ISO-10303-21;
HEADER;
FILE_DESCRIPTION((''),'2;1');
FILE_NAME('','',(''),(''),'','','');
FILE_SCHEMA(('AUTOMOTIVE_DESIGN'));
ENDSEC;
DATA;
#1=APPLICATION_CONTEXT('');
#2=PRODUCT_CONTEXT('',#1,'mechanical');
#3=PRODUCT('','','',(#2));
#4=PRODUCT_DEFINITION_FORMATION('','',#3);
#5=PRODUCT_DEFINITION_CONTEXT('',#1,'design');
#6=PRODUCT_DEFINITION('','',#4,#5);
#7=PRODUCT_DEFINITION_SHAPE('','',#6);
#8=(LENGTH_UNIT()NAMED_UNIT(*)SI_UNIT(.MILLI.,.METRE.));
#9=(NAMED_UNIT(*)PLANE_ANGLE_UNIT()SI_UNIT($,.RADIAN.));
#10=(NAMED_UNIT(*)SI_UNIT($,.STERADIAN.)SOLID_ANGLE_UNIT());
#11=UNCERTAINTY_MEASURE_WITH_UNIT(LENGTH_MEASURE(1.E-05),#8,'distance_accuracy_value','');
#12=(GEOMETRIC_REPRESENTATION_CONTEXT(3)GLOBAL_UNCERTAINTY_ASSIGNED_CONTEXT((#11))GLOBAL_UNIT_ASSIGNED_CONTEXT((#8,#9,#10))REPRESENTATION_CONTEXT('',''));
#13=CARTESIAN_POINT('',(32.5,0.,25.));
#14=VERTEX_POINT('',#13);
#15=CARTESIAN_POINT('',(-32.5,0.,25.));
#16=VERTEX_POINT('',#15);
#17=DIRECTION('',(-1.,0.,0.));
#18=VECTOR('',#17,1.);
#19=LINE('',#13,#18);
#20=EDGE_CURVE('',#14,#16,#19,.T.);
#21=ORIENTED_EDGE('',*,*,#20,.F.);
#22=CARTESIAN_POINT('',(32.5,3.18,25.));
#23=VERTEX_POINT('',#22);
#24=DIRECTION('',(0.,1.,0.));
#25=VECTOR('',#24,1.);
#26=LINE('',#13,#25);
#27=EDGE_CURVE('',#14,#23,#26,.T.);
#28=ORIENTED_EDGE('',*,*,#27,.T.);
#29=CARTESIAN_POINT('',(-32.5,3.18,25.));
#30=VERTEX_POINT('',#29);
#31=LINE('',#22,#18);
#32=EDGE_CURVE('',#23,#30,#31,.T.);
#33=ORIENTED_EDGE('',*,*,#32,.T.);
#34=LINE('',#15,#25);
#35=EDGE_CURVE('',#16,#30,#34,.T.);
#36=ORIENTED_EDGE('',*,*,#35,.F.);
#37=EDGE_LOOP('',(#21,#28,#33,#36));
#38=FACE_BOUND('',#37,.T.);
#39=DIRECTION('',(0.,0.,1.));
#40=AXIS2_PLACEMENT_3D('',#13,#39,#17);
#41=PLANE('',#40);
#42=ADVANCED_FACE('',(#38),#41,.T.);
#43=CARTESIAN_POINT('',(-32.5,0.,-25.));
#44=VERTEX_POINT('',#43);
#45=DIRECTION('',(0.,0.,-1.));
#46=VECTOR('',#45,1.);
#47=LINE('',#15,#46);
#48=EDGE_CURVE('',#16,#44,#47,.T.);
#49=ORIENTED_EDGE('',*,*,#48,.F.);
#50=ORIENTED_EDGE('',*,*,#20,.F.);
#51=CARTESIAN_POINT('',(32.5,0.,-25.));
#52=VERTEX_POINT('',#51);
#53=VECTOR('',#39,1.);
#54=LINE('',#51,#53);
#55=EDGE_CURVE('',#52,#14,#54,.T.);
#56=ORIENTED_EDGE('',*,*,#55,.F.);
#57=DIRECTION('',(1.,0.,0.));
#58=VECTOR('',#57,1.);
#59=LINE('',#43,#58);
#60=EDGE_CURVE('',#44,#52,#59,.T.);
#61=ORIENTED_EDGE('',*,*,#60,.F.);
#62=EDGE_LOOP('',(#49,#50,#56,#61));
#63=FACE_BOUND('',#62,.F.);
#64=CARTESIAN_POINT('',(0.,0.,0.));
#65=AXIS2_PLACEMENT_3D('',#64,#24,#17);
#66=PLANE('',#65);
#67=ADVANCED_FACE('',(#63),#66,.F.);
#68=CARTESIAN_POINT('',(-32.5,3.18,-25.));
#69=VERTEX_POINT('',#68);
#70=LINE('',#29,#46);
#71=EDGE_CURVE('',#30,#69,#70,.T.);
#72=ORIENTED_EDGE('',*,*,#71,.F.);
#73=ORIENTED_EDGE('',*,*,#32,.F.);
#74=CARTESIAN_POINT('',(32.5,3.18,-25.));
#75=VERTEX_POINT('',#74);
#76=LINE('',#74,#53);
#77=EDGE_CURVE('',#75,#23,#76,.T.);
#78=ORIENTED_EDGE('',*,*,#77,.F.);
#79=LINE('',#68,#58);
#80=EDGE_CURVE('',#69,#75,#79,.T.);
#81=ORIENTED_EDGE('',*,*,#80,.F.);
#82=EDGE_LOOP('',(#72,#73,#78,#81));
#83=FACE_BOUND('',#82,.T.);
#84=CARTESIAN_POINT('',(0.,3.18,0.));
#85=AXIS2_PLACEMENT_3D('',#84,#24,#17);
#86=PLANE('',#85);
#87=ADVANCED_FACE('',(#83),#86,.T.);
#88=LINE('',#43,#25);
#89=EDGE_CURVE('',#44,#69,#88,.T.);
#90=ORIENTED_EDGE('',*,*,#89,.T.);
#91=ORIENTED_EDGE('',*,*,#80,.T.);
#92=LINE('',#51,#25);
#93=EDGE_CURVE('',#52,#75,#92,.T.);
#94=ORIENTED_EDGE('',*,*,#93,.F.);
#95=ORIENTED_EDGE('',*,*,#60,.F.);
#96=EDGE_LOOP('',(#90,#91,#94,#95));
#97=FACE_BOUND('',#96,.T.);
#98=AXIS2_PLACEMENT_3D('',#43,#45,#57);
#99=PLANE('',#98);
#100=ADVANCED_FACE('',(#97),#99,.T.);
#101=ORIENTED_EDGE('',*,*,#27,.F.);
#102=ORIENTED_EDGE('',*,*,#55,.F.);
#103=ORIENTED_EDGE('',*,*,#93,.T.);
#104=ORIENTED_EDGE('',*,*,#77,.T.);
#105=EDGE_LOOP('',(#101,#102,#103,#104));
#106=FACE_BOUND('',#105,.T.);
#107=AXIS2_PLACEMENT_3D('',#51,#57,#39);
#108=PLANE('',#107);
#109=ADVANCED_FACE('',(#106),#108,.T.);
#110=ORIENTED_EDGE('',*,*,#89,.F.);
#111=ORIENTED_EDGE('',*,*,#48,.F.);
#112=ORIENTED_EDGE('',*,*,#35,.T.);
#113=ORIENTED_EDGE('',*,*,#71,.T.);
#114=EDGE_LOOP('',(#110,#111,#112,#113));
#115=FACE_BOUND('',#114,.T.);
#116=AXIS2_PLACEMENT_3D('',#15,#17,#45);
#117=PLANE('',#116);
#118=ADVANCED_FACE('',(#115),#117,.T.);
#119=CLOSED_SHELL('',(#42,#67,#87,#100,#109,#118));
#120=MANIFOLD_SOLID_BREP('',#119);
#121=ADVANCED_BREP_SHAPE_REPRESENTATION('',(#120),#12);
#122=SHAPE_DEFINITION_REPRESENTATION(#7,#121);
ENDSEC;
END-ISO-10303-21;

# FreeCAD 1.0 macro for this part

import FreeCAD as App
import Part
import Sketcher
from FreeCAD import Vector


def add_polygon(sketch, points):
    """Adds a closed chain of lines whose ends are joined by coincident constraints."""
    first, n = sketch.GeometryCount, len(points)
    for a, b in zip(points, points[1:] + points[:1]):
        sketch.addGeometry(Part.LineSegment(App.Vector(*a, 0), App.Vector(*b, 0)), False)
    for i in range(n):
        sketch.addConstraint(Sketcher.Constraint("Coincident", first + i, 2, first + (i + 1) % n, 1))

doc = App.newDocument("Part")
params = doc.addObject("Spreadsheet::Sheet", "Params")
for row, (alias, value) in enumerate([
    ("sketch1_width", "65 mm"),
    ("sketch1_height", "50 mm"),
    ("pad1_length", "3.18 mm"),
], start=1):
    params.set(f"A{row}", alias)
    params.set(f"B{row}", "=" + value)
    params.setAlias(f"B{row}", alias)

body = doc.addObject("PartDesign::Body", "Body")

# Sketch on XZ plane
sketch1 = body.newObject("Sketcher::SketchObject", "Sketch")
sketch1.AttachmentSupport = (doc.getObject("XZ_Plane"), [""])
sketch1.MapMode = "FlatFace"
add_polygon(sketch1, [(-32.5, 25), (32.5, 25), (32.5, -25), (-32.5, -25)])  # lines 0-3
sketch1.addConstraint([
    Sketcher.Constraint("Horizontal", 0),
    Sketcher.Constraint("Vertical", 1),
    Sketcher.Constraint("Horizontal", 2),
    Sketcher.Constraint("Vertical", 3),
    Sketcher.Constraint("Symmetric", 0, 2, 2, 2, -1, 1),
    Sketcher.Constraint("DistanceX", 0, 1, 0, 2, 65.0),
    Sketcher.Constraint("DistanceY", 1, 2, 1, 1, 50.0),
])
sketch1.setExpression("Constraints[9]", "Params.sketch1_width")
sketch1.setExpression("Constraints[10]", "Params.sketch1_height")
pad1 = body.newObject("PartDesign::Pad", "Pad")
pad1.Profile = sketch1
pad1.setExpression("Length", "Params.pad1_length")
pad1.Reversed = True

doc.recompute()
